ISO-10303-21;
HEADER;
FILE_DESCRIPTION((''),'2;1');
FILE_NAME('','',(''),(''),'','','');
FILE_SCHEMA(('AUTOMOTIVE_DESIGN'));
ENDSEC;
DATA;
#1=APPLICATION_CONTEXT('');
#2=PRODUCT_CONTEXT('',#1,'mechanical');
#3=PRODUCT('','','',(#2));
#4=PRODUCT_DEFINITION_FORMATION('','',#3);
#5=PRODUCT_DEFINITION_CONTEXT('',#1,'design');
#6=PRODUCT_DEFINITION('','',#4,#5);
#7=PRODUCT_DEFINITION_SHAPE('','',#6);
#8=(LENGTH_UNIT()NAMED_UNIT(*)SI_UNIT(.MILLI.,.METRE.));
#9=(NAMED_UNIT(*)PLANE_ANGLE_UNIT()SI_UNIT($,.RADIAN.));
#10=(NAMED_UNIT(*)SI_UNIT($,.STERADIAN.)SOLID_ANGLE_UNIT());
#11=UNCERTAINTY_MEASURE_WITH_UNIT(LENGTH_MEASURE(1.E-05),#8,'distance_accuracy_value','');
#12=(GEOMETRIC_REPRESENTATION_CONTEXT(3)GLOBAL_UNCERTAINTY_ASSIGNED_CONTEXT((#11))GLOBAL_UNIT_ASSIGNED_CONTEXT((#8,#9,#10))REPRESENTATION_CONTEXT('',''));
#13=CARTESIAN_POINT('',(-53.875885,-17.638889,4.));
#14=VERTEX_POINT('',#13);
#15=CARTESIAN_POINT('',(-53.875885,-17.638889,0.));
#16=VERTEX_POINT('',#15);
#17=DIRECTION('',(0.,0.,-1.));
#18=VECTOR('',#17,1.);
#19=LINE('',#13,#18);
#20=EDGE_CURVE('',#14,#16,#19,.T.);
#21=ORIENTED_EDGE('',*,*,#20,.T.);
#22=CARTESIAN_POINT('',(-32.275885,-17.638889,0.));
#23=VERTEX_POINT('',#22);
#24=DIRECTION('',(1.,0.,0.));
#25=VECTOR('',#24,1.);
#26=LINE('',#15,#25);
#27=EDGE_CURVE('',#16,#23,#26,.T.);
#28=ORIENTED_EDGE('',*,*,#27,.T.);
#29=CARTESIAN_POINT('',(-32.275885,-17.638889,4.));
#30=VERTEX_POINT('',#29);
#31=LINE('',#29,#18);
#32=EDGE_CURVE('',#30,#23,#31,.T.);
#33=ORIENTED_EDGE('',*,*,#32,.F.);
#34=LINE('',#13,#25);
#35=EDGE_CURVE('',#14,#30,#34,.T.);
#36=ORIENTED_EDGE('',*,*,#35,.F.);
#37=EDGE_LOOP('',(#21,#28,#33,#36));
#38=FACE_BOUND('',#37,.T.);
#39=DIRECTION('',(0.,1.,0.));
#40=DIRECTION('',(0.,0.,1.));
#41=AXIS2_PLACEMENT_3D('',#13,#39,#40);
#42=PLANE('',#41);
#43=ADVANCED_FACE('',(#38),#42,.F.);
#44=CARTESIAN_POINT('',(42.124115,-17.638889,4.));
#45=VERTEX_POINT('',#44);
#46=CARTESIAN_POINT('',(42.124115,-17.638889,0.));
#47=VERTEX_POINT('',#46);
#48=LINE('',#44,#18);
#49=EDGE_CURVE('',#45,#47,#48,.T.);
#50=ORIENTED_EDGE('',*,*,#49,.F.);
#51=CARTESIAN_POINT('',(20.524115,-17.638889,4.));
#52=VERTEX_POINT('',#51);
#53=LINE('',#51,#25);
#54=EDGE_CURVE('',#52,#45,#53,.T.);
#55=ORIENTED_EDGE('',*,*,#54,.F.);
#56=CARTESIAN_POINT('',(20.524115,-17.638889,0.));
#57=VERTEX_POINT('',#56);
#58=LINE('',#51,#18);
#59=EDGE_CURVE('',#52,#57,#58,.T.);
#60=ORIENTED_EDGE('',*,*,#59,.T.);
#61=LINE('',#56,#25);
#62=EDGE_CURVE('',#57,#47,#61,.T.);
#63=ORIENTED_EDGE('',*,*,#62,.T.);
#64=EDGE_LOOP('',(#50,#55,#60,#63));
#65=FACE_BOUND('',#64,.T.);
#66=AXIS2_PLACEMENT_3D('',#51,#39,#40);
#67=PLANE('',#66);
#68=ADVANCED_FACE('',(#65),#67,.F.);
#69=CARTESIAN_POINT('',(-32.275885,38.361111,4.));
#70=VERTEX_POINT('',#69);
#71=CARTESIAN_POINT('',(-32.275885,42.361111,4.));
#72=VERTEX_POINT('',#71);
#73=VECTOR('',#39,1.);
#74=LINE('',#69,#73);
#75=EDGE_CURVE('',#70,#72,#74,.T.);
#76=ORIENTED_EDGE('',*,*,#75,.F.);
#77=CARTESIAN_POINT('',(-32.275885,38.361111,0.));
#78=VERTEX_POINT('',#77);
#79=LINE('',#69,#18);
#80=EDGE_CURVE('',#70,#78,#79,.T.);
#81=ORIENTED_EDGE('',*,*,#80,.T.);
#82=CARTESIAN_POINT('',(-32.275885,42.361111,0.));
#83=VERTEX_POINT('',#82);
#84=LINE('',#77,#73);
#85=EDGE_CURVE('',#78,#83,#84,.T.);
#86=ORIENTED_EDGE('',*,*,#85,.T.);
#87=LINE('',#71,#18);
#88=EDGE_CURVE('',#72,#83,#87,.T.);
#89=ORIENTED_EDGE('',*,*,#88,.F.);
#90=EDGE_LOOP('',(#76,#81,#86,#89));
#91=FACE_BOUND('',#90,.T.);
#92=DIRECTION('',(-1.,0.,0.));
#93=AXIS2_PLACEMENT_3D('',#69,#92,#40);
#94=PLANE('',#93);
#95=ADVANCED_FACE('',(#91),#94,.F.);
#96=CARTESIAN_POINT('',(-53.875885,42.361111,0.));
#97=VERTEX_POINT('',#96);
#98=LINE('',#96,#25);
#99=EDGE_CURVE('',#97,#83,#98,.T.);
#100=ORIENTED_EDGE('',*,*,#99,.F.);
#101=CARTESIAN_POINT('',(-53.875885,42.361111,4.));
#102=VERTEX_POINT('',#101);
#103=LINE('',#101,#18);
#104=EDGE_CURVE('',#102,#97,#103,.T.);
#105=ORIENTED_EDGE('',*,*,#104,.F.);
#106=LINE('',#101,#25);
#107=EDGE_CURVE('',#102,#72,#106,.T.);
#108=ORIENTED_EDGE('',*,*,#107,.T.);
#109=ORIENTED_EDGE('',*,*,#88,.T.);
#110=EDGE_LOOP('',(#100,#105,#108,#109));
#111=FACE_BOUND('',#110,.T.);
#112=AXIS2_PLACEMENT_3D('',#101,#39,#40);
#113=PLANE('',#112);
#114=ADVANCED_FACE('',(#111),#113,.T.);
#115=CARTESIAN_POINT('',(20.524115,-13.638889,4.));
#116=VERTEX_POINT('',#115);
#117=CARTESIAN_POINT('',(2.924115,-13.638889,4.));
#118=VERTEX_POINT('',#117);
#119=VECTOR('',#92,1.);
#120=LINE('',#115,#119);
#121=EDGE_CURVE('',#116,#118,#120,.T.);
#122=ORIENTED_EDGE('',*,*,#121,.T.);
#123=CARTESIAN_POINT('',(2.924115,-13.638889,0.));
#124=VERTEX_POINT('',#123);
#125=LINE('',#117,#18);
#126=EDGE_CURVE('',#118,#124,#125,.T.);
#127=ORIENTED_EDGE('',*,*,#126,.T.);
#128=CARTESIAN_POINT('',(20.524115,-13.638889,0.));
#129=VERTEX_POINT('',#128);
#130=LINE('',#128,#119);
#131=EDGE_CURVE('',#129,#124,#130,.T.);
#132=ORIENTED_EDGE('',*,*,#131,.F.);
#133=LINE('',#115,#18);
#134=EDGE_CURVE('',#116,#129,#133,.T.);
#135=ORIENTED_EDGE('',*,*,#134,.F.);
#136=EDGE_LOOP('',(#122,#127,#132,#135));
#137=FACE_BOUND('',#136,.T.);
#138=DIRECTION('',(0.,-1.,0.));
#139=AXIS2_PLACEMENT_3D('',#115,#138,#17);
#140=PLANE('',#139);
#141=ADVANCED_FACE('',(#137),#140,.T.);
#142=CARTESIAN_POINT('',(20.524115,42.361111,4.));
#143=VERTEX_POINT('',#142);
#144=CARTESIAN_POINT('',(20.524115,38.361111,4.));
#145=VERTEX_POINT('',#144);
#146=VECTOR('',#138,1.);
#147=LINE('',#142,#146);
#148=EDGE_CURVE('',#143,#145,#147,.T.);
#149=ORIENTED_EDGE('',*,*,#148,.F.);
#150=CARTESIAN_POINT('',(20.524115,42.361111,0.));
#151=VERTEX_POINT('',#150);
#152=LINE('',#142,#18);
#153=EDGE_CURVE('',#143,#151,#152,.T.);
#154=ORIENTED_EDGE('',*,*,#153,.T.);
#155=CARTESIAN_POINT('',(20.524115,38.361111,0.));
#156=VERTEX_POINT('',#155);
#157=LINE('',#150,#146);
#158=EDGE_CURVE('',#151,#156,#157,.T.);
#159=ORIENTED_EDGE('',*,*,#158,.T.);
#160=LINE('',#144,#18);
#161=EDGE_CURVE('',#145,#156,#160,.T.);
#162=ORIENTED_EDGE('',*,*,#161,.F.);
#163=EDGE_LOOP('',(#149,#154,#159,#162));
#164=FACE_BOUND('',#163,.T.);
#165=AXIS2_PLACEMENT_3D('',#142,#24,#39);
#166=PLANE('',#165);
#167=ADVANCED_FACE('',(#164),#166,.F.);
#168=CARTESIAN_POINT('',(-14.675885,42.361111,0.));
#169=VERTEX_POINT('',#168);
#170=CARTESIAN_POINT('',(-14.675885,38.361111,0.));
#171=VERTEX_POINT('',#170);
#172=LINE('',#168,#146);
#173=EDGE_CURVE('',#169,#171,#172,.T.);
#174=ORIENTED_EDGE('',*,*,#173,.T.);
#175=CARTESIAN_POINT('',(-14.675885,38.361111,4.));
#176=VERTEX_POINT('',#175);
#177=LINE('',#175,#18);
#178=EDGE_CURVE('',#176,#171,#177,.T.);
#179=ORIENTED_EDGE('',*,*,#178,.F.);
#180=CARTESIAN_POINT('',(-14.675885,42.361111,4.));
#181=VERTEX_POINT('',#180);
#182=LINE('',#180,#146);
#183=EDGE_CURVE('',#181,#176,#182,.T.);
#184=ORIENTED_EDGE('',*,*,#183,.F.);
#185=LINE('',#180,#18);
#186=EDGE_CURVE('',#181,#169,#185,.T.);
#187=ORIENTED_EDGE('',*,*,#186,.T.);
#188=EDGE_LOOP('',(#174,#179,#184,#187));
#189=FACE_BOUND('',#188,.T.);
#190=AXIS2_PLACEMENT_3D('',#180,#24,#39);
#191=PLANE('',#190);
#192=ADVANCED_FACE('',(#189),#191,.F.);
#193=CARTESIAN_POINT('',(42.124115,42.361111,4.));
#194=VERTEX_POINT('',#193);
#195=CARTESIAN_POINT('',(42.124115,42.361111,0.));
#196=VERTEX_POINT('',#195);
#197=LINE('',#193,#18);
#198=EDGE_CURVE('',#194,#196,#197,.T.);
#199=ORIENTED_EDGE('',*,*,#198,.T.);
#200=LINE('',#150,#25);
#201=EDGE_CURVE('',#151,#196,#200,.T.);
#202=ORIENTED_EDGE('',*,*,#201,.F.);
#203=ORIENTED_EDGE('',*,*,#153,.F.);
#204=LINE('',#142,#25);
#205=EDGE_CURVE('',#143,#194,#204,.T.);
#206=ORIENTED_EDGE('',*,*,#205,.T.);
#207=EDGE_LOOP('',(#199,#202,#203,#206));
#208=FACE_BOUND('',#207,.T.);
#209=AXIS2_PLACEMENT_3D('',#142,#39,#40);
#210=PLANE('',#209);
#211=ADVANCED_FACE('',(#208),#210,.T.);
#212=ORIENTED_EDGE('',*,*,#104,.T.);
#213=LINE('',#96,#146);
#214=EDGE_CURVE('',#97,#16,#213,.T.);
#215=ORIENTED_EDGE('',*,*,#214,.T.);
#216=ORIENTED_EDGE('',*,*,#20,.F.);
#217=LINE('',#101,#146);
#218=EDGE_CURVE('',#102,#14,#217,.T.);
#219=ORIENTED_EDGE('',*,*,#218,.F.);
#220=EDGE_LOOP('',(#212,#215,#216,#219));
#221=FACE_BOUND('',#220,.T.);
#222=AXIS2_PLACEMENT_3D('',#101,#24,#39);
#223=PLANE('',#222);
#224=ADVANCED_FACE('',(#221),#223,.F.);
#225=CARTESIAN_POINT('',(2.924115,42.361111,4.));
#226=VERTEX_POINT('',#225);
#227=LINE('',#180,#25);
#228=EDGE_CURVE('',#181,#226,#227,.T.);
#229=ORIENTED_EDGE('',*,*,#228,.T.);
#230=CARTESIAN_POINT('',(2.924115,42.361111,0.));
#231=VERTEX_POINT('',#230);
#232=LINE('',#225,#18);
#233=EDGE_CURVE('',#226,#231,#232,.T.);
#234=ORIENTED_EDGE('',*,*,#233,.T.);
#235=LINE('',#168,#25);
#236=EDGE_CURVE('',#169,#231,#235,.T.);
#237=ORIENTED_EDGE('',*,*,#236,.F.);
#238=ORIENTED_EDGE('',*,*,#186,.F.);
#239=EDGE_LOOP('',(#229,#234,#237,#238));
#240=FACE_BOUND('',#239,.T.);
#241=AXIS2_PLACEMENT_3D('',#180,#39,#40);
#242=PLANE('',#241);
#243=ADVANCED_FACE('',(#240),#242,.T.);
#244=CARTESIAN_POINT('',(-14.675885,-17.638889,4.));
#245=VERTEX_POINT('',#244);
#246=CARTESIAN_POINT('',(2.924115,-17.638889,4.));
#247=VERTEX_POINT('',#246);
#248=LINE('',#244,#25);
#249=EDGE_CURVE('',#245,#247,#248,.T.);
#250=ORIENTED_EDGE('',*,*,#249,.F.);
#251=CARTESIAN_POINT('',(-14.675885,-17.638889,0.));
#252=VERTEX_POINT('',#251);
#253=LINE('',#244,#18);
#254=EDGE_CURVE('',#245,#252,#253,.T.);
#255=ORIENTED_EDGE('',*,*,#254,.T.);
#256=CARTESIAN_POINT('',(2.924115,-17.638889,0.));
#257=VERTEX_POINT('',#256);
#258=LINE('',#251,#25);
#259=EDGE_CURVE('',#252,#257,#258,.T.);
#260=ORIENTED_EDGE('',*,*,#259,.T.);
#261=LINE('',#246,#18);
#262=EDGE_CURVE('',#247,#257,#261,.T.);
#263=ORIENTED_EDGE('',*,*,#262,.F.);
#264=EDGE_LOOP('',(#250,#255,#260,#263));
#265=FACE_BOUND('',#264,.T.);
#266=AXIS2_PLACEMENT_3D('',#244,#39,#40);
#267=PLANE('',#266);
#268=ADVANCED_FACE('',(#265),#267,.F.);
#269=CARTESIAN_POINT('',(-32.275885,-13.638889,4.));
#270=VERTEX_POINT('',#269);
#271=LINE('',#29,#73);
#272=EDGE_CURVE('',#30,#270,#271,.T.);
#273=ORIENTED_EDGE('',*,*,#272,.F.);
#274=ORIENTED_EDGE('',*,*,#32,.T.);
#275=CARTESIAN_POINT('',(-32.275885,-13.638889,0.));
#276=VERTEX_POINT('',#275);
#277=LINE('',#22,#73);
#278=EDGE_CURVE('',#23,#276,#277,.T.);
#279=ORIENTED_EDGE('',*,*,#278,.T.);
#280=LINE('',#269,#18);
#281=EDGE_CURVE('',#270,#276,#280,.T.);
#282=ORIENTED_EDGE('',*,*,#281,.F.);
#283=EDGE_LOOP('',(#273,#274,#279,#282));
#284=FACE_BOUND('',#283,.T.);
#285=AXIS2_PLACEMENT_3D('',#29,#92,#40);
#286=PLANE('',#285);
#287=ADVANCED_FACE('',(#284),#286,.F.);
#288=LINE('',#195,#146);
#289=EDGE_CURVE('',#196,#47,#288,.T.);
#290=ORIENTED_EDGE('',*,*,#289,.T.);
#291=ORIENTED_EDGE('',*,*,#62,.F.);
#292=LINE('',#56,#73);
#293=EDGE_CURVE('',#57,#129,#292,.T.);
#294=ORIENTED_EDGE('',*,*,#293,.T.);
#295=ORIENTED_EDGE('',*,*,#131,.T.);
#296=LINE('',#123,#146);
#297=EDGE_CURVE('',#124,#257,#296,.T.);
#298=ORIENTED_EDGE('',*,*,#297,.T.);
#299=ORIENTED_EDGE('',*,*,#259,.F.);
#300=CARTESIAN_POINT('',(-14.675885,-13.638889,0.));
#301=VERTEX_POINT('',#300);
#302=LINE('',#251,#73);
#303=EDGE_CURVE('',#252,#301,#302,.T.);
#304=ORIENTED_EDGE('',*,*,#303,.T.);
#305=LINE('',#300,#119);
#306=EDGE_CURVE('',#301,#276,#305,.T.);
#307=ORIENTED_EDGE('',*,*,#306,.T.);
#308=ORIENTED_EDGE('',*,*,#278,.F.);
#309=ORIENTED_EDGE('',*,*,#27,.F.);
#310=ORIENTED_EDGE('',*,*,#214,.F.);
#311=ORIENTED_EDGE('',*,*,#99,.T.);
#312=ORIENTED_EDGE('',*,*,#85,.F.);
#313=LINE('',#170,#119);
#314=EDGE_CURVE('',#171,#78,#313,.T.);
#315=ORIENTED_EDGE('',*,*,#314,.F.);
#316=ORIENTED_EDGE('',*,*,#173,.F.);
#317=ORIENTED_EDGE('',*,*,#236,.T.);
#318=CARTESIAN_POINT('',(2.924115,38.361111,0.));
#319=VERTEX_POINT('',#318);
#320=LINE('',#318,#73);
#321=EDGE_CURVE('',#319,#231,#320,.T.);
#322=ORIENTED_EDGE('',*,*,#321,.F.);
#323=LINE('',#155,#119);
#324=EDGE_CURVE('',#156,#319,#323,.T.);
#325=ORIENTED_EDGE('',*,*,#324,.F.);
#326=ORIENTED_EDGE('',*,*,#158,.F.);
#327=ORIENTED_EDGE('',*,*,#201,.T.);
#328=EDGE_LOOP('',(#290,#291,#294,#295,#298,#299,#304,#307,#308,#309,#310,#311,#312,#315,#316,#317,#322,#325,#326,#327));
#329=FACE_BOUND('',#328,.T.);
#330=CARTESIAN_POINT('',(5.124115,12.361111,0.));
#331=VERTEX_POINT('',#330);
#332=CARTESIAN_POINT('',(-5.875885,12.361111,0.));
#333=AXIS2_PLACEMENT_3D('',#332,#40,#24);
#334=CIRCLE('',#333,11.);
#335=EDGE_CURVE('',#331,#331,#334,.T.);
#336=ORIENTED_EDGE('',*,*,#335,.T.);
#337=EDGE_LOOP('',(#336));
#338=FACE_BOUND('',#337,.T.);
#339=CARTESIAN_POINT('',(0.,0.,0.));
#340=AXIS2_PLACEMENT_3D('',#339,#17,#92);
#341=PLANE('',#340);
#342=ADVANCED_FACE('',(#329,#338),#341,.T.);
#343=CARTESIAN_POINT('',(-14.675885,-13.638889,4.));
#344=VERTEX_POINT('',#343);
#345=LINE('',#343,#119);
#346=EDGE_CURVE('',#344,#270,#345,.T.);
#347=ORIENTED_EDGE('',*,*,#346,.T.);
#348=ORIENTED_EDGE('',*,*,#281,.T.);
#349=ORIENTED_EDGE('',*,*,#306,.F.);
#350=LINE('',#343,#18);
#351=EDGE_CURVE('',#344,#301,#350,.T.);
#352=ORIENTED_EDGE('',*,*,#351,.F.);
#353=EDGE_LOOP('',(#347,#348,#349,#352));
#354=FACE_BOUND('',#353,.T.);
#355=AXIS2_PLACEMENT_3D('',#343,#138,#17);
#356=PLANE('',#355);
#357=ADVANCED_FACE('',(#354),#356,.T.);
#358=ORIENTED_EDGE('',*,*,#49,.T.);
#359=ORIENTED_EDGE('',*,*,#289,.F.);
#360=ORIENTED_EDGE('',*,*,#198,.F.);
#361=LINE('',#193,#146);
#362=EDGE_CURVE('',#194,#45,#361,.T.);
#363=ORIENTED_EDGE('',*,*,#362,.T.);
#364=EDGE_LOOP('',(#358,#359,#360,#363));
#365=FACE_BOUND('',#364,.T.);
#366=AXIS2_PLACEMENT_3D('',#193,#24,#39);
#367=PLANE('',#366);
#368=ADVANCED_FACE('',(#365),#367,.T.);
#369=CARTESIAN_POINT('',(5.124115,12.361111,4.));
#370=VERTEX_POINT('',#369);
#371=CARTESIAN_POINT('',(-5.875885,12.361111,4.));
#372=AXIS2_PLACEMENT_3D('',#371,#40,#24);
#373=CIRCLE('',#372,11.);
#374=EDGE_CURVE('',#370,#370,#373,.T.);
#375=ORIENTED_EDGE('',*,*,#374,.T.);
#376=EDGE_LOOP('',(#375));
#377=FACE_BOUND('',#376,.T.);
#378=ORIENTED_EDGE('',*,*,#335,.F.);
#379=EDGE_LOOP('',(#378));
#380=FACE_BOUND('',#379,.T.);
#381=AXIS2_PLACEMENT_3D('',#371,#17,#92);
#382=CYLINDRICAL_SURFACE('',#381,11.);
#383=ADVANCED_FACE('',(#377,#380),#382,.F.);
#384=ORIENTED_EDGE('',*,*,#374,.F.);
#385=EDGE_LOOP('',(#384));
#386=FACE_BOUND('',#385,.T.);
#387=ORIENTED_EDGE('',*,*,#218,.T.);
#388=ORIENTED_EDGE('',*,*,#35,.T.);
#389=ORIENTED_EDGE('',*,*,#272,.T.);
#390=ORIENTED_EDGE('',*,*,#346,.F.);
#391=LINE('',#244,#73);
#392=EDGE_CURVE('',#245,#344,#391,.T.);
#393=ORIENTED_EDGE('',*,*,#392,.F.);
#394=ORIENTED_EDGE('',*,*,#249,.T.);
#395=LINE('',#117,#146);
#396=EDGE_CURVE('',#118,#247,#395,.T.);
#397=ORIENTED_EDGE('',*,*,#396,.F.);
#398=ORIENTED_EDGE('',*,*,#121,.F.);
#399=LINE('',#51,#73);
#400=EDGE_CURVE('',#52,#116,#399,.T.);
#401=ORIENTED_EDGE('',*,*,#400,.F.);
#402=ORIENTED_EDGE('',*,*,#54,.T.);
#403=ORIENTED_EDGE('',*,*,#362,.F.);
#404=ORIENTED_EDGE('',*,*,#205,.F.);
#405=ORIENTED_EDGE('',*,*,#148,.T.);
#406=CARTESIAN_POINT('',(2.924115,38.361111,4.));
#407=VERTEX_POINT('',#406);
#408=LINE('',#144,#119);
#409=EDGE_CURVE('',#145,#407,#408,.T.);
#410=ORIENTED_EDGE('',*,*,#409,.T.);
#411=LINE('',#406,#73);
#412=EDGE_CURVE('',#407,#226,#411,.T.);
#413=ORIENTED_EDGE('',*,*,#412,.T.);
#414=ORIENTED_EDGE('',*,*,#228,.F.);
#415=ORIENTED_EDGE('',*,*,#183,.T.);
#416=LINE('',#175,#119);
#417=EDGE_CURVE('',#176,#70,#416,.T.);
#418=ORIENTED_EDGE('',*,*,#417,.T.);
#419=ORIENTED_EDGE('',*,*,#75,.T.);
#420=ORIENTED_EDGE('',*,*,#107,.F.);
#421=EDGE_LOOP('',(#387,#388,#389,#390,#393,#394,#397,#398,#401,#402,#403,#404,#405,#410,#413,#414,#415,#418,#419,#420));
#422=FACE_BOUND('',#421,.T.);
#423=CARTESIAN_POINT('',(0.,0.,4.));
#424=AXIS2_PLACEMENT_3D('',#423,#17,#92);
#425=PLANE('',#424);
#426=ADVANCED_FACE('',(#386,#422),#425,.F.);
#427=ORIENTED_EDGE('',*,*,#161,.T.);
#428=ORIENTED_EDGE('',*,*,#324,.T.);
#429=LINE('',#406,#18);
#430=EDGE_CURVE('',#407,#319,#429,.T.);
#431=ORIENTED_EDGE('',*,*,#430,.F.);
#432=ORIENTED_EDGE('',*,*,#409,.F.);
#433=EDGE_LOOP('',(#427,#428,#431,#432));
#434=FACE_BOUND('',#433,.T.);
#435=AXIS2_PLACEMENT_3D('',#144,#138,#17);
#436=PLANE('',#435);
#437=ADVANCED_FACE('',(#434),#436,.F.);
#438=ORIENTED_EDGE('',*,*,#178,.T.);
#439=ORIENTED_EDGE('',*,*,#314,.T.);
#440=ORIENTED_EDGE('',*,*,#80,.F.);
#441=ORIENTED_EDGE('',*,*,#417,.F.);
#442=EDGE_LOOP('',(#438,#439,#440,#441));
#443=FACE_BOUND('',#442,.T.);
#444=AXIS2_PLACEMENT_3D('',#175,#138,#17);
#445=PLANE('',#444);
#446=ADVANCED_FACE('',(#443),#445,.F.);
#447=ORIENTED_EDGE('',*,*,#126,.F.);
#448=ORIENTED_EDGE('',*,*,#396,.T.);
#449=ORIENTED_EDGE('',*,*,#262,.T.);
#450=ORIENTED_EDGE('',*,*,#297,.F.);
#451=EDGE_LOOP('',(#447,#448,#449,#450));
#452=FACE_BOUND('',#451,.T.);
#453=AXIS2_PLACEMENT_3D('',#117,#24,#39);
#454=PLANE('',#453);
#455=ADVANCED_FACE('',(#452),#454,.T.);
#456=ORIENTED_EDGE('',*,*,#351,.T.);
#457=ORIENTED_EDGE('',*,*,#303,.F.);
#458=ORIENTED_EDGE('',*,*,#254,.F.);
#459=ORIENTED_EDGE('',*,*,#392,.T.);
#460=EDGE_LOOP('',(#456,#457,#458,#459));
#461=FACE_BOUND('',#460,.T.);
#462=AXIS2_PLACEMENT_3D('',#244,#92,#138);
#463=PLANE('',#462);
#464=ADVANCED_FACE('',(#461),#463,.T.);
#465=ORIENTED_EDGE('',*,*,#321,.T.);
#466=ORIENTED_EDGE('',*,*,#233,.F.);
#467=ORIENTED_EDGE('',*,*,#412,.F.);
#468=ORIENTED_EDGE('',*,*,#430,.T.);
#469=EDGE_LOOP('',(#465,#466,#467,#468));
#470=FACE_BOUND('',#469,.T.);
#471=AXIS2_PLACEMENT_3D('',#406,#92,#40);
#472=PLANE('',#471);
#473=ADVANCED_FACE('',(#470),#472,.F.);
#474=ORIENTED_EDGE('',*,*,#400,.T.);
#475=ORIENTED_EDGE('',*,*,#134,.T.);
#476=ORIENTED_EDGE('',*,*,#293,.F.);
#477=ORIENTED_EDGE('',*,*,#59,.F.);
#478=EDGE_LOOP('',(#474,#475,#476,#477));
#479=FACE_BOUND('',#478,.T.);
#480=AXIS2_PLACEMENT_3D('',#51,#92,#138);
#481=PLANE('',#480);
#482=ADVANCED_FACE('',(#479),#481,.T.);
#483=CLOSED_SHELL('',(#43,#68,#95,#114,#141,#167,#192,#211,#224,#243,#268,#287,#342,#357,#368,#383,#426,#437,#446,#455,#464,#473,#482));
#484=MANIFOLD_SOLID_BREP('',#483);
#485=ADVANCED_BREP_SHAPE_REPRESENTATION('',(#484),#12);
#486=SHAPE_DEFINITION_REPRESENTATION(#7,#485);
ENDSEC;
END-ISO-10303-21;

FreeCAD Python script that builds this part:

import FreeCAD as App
import Part
import Sketcher

V = App.Vector
Q = App.Units.Quantity


def add_polygon(sketch, points):
    """Adds a closed chain of lines whose ends are joined by coincident constraints."""
    first, n = sketch.GeometryCount, len(points)
    for a, b in zip(points, points[1:] + points[:1]):
        sketch.addGeometry(Part.LineSegment(App.Vector(*a, 0), App.Vector(*b, 0)), False)
    for i in range(n):
        sketch.addConstraint(Sketcher.Constraint("Coincident", first + i, 2, first + (i + 1) % n, 1))

doc = App.newDocument("Part")
params = doc.addObject("Spreadsheet::Sheet", "Params")
for row, (alias, value) in enumerate([
    ("sketch1_diameter", "22 mm"),
    ("sketch1_height", "60 mm"),
    ("sketch1_height2", "4 mm"),
    ("sketch1_width", "21.6 mm"),
    ("sketch1_width2", "17.6 mm"),
    ("pad1_length", "4 mm"),
], start=1):
    params.set(f"A{row}", alias)
    params.set(f"B{row}", "=" + value)
    params.setAlias(f"B{row}", alias)

body = doc.addObject("PartDesign::Body", "Body")

# Sketch on XY plane
sketch1 = doc.addObject("Sketcher::SketchObject", "Sketch")
body.addObject(sketch1)
sketch1.AttachmentSupport = (doc.XY_Plane, [""])
sketch1.MapMode = "FlatFace"
add_polygon(sketch1, [(-32.3, 42.4), (-53.9, 42.4), (-53.9, -17.6), (-32.3, -17.6), (-32.3, -13.6), (-14.7, -13.6), (-14.7, -17.6), (2.9, -17.6), (2.9, -13.6), (20.5, -13.6), (20.5, -17.6), (42.1, -17.6), (42.1, 42.4), (20.5, 42.4), (20.5, 38.4), (2.9, 38.4), (2.9, 42.4), (-14.7, 42.4), (-14.7, 38.4), (-32.3, 38.4)])  # lines 0-19
sketch1.addGeometry(Part.Circle(V(-5.9, 12.4, 0), V(0, 0, 1), 11), False)  # 20
sketch1.addConstraint([
    Sketcher.Constraint("Horizontal", 0),
    Sketcher.Constraint("Vertical", 1),
    Sketcher.Constraint("Horizontal", 2),
    Sketcher.Constraint("Vertical", 3),
    Sketcher.Constraint("Horizontal", 4),
    Sketcher.Constraint("Vertical", 5),
    Sketcher.Constraint("Horizontal", 6),
    Sketcher.Constraint("Vertical", 7),
    Sketcher.Constraint("Horizontal", 8),
    Sketcher.Constraint("Vertical", 9),
    Sketcher.Constraint("Horizontal", 10),
    Sketcher.Constraint("Vertical", 11),
    Sketcher.Constraint("Horizontal", 12),
    Sketcher.Constraint("Vertical", 13),
    Sketcher.Constraint("Horizontal", 14),
    Sketcher.Constraint("Vertical", 15),
    Sketcher.Constraint("Horizontal", 16),
    Sketcher.Constraint("Vertical", 17),
    Sketcher.Constraint("Horizontal", 18),
    Sketcher.Constraint("Vertical", 19),
    Sketcher.Constraint("Horizontal", 2, 2, 5, 2),
    Sketcher.Constraint("Horizontal", 4, 2, 7, 2),
    Sketcher.Constraint("Horizontal", 6, 2, 9, 2),
    Sketcher.Constraint("Horizontal", 0, 2, 11, 2),
    Sketcher.Constraint("Horizontal", 12, 2, 15, 2),
    Sketcher.Constraint("Horizontal", 14, 2, 17, 2),
    Sketcher.Constraint("Vertical", 9, 2, 12, 2),
    Sketcher.Constraint("Vertical", 7, 2, 14, 2),
    Sketcher.Constraint("Vertical", 5, 2, 16, 2),
    Sketcher.Constraint("Vertical", 3, 2, 18, 2),
    Sketcher.Constraint("Equal", 4, 6),
    Sketcher.Constraint("Equal", 6, 8),
    Sketcher.Constraint("Equal", 2, 10),
    Sketcher.Constraint("Equal", 9, 13),
    Sketcher.Constraint("Diameter", 20, Q("22 mm")),
    Sketcher.Constraint("DistanceY", 1, 2, 1, 1, Q("60 mm")),
    Sketcher.Constraint("DistanceY", 3, 1, 3, 2, Q("4 mm")),
    Sketcher.Constraint("DistanceX", 0, 2, 0, 1, Q("21.6 mm")),
    Sketcher.Constraint("DistanceX", 4, 1, 4, 2, Q("17.6 mm")),
    Sketcher.Constraint("DistanceX", 0, 2, 20, 3, Q("48 mm")),
    Sketcher.Constraint("DistanceY", 20, 3, 0, 2, Q("30 mm")),
    Sketcher.Constraint("DistanceY", -1, 1, 20, 3, Q("12.361111 mm")),
    Sketcher.Constraint("DistanceX", 20, 3, -1, 1, Q("5.875885 mm")),
])
sketch1.setExpression("Constraints[54]", "Params.sketch1_diameter")
sketch1.setExpression("Constraints[55]", "Params.sketch1_height")
sketch1.setExpression("Constraints[56]", "Params.sketch1_height2")
sketch1.setExpression("Constraints[57]", "Params.sketch1_width")
sketch1.setExpression("Constraints[58]", "Params.sketch1_width2")
pad1 = doc.addObject("PartDesign::Pad", "Pad")
body.addObject(pad1)
pad1.Profile = sketch1
pad1.setExpression("Length", "Params.pad1_length")

doc.recompute()
